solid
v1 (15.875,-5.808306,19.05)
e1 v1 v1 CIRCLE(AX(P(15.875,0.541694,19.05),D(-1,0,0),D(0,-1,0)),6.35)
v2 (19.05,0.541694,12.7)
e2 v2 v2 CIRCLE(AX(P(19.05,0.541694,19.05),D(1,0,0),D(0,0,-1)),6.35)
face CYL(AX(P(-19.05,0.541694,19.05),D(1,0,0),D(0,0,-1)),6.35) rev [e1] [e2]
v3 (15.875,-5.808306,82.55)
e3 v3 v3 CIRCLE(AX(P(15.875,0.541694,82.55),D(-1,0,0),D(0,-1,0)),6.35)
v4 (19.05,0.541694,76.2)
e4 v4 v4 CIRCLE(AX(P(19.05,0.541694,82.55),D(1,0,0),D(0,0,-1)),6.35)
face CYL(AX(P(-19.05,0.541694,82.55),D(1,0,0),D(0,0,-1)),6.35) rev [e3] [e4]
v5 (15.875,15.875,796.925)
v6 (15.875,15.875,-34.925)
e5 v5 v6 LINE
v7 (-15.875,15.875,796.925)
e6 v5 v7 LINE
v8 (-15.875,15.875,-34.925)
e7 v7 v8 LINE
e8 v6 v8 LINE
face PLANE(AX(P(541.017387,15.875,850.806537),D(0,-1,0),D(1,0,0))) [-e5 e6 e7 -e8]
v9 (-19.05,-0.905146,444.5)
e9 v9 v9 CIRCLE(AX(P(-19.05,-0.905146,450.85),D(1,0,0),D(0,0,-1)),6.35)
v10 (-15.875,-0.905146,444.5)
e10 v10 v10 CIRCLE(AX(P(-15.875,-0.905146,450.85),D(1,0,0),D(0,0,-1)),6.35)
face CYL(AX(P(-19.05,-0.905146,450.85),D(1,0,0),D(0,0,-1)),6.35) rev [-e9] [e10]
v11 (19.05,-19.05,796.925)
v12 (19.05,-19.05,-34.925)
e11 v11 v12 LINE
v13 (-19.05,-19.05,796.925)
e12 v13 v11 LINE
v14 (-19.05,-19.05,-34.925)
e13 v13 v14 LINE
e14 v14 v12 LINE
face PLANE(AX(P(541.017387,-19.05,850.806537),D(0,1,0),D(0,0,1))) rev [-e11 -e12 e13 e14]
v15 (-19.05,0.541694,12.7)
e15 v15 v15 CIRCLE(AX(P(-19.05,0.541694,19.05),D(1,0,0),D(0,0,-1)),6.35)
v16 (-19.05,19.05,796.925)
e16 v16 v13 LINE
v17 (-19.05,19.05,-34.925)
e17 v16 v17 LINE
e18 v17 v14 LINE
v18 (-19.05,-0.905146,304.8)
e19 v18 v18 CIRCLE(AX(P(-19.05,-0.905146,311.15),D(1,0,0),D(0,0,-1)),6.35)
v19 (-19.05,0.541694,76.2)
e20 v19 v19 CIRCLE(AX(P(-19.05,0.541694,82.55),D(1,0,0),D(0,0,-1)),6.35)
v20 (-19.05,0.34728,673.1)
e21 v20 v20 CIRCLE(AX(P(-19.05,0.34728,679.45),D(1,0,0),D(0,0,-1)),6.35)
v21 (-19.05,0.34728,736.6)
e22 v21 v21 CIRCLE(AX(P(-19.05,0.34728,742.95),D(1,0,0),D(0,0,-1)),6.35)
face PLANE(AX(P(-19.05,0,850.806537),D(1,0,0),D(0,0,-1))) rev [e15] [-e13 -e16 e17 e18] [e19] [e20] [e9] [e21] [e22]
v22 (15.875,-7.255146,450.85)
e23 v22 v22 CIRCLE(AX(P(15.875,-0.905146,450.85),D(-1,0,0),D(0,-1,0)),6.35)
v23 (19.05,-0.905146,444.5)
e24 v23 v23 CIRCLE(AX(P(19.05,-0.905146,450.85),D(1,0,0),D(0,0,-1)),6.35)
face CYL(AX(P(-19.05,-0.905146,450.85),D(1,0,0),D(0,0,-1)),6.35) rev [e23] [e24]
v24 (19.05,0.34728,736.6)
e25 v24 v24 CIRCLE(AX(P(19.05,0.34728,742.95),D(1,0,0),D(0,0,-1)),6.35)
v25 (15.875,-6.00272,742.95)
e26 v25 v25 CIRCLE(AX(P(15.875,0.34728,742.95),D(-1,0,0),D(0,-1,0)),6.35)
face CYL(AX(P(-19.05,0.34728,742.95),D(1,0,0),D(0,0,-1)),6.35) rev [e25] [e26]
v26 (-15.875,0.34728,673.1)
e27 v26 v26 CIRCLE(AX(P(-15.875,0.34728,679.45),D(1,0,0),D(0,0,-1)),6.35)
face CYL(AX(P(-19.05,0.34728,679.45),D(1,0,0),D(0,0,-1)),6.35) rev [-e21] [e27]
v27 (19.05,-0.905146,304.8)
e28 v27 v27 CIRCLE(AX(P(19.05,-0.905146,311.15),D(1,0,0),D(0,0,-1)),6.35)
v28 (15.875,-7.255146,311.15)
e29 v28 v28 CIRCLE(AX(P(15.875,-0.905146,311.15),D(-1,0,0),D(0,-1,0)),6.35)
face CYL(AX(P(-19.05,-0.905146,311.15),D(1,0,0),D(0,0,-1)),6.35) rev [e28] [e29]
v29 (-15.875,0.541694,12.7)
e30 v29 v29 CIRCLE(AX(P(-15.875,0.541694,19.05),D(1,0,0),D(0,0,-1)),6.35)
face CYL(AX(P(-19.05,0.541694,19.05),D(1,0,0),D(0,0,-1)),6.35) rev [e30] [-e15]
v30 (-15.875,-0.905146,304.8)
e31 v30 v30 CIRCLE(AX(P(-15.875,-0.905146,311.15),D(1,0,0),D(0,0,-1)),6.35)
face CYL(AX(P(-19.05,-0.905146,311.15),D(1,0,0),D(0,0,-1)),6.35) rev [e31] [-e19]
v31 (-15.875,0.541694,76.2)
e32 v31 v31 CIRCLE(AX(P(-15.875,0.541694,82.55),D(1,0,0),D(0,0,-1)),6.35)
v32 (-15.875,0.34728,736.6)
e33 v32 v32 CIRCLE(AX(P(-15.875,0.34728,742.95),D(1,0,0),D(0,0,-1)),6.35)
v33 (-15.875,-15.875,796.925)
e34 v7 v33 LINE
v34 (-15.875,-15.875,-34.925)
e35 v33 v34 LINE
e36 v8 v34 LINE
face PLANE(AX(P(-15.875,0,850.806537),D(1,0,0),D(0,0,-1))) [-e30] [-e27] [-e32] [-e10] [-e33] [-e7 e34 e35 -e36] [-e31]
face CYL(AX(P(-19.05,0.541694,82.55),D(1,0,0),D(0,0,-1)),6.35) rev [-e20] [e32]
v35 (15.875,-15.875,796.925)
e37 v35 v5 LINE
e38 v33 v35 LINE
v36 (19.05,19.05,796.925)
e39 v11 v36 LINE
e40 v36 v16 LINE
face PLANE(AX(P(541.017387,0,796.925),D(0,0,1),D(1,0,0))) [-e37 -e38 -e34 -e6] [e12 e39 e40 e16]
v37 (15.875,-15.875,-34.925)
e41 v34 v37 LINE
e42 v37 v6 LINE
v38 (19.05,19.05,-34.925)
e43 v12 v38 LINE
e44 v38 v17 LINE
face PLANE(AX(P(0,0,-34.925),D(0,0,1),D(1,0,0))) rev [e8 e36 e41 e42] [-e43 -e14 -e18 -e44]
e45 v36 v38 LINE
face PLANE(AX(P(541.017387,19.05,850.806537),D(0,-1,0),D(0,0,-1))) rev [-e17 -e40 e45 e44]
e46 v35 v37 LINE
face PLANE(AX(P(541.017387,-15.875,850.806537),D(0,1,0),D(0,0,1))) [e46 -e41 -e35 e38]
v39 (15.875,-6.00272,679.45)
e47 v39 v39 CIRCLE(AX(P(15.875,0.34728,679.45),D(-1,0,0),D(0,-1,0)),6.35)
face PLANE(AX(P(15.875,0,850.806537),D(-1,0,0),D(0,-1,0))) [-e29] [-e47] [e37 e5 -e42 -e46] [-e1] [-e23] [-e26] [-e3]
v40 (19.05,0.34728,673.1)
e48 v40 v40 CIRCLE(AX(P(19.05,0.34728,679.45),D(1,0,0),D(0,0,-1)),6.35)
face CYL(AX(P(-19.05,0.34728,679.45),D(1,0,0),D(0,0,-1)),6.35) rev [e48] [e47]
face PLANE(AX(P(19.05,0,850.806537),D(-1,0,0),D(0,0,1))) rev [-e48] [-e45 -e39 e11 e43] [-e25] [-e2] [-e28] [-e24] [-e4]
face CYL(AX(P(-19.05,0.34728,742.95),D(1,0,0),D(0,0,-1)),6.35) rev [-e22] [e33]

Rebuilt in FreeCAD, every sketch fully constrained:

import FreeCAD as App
import Part
import Sketcher

V = App.Vector
Q = App.Units.Quantity

doc = App.newDocument("Part")
body = doc.addObject("PartDesign::Body", "Body")

sketch1 = body.newObject("Sketcher::SketchObject", "Sketch")
sketch1.AttachmentSupport = (doc.getObject("XY_Plane"), [""])
sketch1.MapMode = "FlatFace"
sketch1.AttachmentOffset = App.Placement(V(0, 0, -1.375 * 25.4), App.Rotation())
sketch1.addGeometry(Part.LineSegment(V(-19, 19, 0), V(-19, -19, 0)), False)
sketch1.addGeometry(Part.LineSegment(V(-19, -19, 0), V(19, -19, 0)), False)
sketch1.addGeometry(Part.LineSegment(V(19, -19, 0), V(19, 19, 0)), False)
sketch1.addGeometry(Part.LineSegment(V(19, 19, 0), V(-19, 19, 0)), False)
sketch1.addGeometry(Part.LineSegment(V(16, -16, 0), V(-16, -16, 0)), False)
sketch1.addGeometry(Part.LineSegment(V(-16, -16, 0), V(-16, 16, 0)), False)
sketch1.addGeometry(Part.LineSegment(V(-16, 16, 0), V(16, 16, 0)), False)
sketch1.addGeometry(Part.LineSegment(V(16, 16, 0), V(16, -16, 0)), False)
sketch1.addConstraint(Sketcher.Constraint("Coincident", 0, 2, 1, 1))
sketch1.addConstraint(Sketcher.Constraint("Coincident", 1, 2, 2, 1))
sketch1.addConstraint(Sketcher.Constraint("Coincident", 2, 2, 3, 1))
sketch1.addConstraint(Sketcher.Constraint("Coincident", 3, 2, 0, 1))
sketch1.addConstraint(Sketcher.Constraint("Coincident", 4, 2, 5, 1))
sketch1.addConstraint(Sketcher.Constraint("Coincident", 5, 2, 6, 1))
sketch1.addConstraint(Sketcher.Constraint("Coincident", 6, 2, 7, 1))
sketch1.addConstraint(Sketcher.Constraint("Coincident", 7, 2, 4, 1))
sketch1.addConstraint(Sketcher.Constraint("Vertical", 0))
sketch1.addConstraint(Sketcher.Constraint("Horizontal", 1))
sketch1.addConstraint(Sketcher.Constraint("Vertical", 2))
sketch1.addConstraint(Sketcher.Constraint("Horizontal", 3))
sketch1.addConstraint(Sketcher.Constraint("Horizontal", 4))
sketch1.addConstraint(Sketcher.Constraint("Vertical", 5))
sketch1.addConstraint(Sketcher.Constraint("Horizontal", 6))
sketch1.addConstraint(Sketcher.Constraint("Vertical", 7))
sketch1.addConstraint(Sketcher.Constraint("Symmetric", 0, 2, 2, 2, -1, 1))
sketch1.addConstraint(Sketcher.Constraint("Symmetric", 4, 2, 6, 2, -1, 1))
sketch1.addConstraint(Sketcher.Constraint("Equal", 3, 0))
sketch1.addConstraint(Sketcher.Constraint("Equal", 6, 5))
sketch1.addConstraint(Sketcher.Constraint("DistanceX", 1, 1, 1, 2, Q("1.5 in")))
sketch1.addConstraint(Sketcher.Constraint("DistanceX", 4, 2, 4, 1, Q("1.25 in")))
pad1 = body.newObject("PartDesign::Pad", "Pad")
pad1.Profile = sketch1
pad1.Length = Q("32.75 in")

sketch2 = body.newObject("Sketcher::SketchObject", "Sketch001")
sketch2.AttachmentSupport = (doc.getObject("YZ_Plane"), [""])
sketch2.MapMode = "FlatFace"
sketch2.AttachmentOffset = App.Placement(V(0, 0, 0.75 * 25.4), App.Rotation())
sketch2.addGeometry(Part.Circle(V(-1, 311, 0), V(0, 0, 1), 6), False)
sketch2.addGeometry(Part.Circle(V(-1, 451, 0), V(0, 0, 1), 6), False)
sketch2.addGeometry(Part.Circle(V(0, 679, 0), V(0, 0, 1), 6), False)
sketch2.addGeometry(Part.Circle(V(0, 743, 0), V(0, 0, 1), 6), False)
sketch2.addGeometry(Part.Circle(V(1, 83, 0), V(0, 0, 1), 6), False)
sketch2.addGeometry(Part.Circle(V(1, 19, 0), V(0, 0, 1), 6), False)
sketch2.addConstraint(Sketcher.Constraint("Equal", 0, 1))
sketch2.addConstraint(Sketcher.Constraint("Equal", 1, 2))
sketch2.addConstraint(Sketcher.Constraint("Equal", 2, 3))
sketch2.addConstraint(Sketcher.Constraint("Equal", 3, 4))
sketch2.addConstraint(Sketcher.Constraint("Equal", 4, 5))
sketch2.addConstraint(Sketcher.Constraint("Vertical", 0, 3, 1, 3))
sketch2.addConstraint(Sketcher.Constraint("Vertical", 2, 3, 3, 3))
sketch2.addConstraint(Sketcher.Constraint("Vertical", 4, 3, 5, 3))
sketch2.addConstraint(Sketcher.Constraint("Diameter", 0, Q("0.5 in")))
sketch2.addConstraint(Sketcher.Constraint("DistanceY", 1, 3, 2, 3, Q("9 in")))
sketch2.addConstraint(Sketcher.Constraint("DistanceY", 0, 3, 3, 3, Q("17 in")))
sketch2.addConstraint(Sketcher.Constraint("DistanceY", 4, 3, 0, 3, Q("9 in")))
sketch2.addConstraint(Sketcher.Constraint("DistanceY", 5, 3, 1, 3, Q("17 in")))
sketch2.addConstraint(Sketcher.Constraint("DistanceY", 0, 3, 1, 3, Q("5.5 in")))
sketch2.addConstraint(Sketcher.Constraint("DistanceY", -1, 1, 0, 3, Q("12.25 in")))
sketch2.addConstraint(Sketcher.Constraint("DistanceX", -1, 1, 2, 3, 0.34728))
sketch2.addConstraint(Sketcher.Constraint("DistanceX", 0, 3, 4, 3, 1.44684))
sketch2.addConstraint(Sketcher.Constraint("DistanceX", 0, 3, -1, 1, 0.905146))
pocket1 = body.newObject("PartDesign::Pocket", "Pocket")
pocket1.Profile = sketch2
pocket1.Type = "ThroughAll"

doc.recompute()
